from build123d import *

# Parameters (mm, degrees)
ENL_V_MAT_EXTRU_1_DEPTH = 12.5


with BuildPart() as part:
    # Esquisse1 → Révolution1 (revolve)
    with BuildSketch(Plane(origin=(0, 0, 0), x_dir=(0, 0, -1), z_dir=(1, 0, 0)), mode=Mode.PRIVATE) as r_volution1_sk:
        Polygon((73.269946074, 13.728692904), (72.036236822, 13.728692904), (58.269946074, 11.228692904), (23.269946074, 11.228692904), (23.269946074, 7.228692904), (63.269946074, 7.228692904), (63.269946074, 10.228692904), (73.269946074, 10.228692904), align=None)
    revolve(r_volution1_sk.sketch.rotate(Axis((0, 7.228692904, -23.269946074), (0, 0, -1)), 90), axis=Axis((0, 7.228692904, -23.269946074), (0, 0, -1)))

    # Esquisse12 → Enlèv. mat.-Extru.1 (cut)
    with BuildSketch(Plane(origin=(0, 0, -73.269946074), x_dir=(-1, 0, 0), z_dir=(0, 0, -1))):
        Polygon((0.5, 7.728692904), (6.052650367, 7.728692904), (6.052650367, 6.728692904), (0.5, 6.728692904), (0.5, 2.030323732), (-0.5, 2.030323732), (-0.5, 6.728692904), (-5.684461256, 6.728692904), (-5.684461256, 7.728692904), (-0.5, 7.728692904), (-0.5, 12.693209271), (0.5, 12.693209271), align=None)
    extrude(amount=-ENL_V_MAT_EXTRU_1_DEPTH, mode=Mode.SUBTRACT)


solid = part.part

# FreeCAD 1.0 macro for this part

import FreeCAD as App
import Part
import Sketcher

doc = App.newDocument("Part")
params = doc.addObject("Spreadsheet::Sheet", "Params")
for row, (alias, value) in enumerate([
    ("sketch1_width", "4 mm"),
    ("sketch1_width2", "3 mm"),
    ("sketch1_height", "35 mm"),
    ("sketch1_height2", "40 mm"),
    ("sketch1_height3", "10 mm"),
    ("revolution_angle", "360 deg"),
    ("sketch2_width", "1 mm"),
    ("pocket1_length", "12.5 mm"),
], start=1):
    params.set(f"A{row}", alias)
    params.set(f"B{row}", "=" + value)
    params.setAlias(f"B{row}", alias)

body = doc.addObject("PartDesign::Body", "Body")

sketch1 = body.newObject("Sketcher::SketchObject", "Sketch")
sketch1.AttachmentSupport = (doc.getObject("YZ_Plane"), [""])
sketch1.MapMode = "FlatFace"
sketch1.addGeometry([
    Part.LineSegment(App.Vector(13.728693, -73.269946, 0), App.Vector(13.728693, -72.036237, 0)),
    Part.LineSegment(App.Vector(13.728693, -72.036237, 0), App.Vector(11.228693, -58.269946, 0)),
    Part.LineSegment(App.Vector(11.228693, -58.269946, 0), App.Vector(11.228693, -23.269946, 0)),
    Part.LineSegment(App.Vector(11.228693, -23.269946, 0), App.Vector(7.228693, -23.269946, 0)),
    Part.LineSegment(App.Vector(7.228693, -23.269946, 0), App.Vector(7.228693, -63.269946, 0)),
    Part.LineSegment(App.Vector(7.228693, -63.269946, 0), App.Vector(10.228693, -63.269946, 0)),
    Part.LineSegment(App.Vector(10.228693, -63.269946, 0), App.Vector(10.228693, -73.269946, 0)),
    Part.LineSegment(App.Vector(10.228693, -73.269946, 0), App.Vector(13.728693, -73.269946, 0)),
], False)
sketch1.addGeometry(Part.LineSegment(App.Vector(7.228693, -23.269946, 0), App.Vector(7.228693, -73.269946, 0)), True)
sketch1.addConstraint([
    Sketcher.Constraint("Coincident", 0, 2, 1, 1),
    Sketcher.Constraint("Coincident", 1, 2, 2, 1),
    Sketcher.Constraint("Coincident", 2, 2, 3, 1),
    Sketcher.Constraint("Coincident", 3, 2, 4, 1),
    Sketcher.Constraint("Coincident", 4, 2, 5, 1),
    Sketcher.Constraint("Coincident", 5, 2, 6, 1),
    Sketcher.Constraint("Coincident", 6, 2, 7, 1),
    Sketcher.Constraint("Coincident", 7, 2, 0, 1),
    Sketcher.Constraint("Vertical", 0),
    Sketcher.Constraint("Vertical", 2),
    Sketcher.Constraint("Horizontal", 3),
    Sketcher.Constraint("Vertical", 4),
    Sketcher.Constraint("Horizontal", 5),
    Sketcher.Constraint("Vertical", 6),
    Sketcher.Constraint("Horizontal", 7),
    Sketcher.Constraint("Vertical", 8),
    Sketcher.Constraint("Coincident", 8, 1, 3, 2),
    Sketcher.Constraint("Horizontal", 7, 2, 8, 2),
    Sketcher.Constraint("DistanceX", 3, 2, 3, 1, 4.0),
    Sketcher.Constraint("DistanceX", 5, 1, 5, 2, 3.0),
    Sketcher.Constraint("DistanceY", 2, 1, 2, 2, 35.0),
    Sketcher.Constraint("DistanceY", 4, 2, 4, 1, 40.0),
    Sketcher.Constraint("DistanceY", 6, 2, 6, 1, 10.0),
    Sketcher.Constraint("DistanceX", 7, 1, 7, 2, 3.5),
    Sketcher.Constraint("DistanceY", 0, 1, 0, 2, 1.233709),
    Sketcher.Constraint("DistanceX", -1, 1, 0, 2, 13.728693),
    Sketcher.Constraint("DistanceY", 0, 2, -1, 1, 72.036237),
])
sketch1.setExpression("Constraints[18]", "Params.sketch1_width")
sketch1.setExpression("Constraints[19]", "Params.sketch1_width2")
sketch1.setExpression("Constraints[20]", "Params.sketch1_height")
sketch1.setExpression("Constraints[21]", "Params.sketch1_height2")
sketch1.setExpression("Constraints[22]", "Params.sketch1_height3")
revolution = body.newObject("PartDesign::Revolution", "Revolution")
revolution.Profile = sketch1
revolution.ReferenceAxis = (sketch1, ["Axis0"])
revolution.setExpression("Angle", "Params.revolution_angle")

sketch2 = body.newObject("Sketcher::SketchObject", "Sketch001")
sketch2.AttachmentSupport = (doc.getObject("XY_Plane"), [""])
sketch2.MapMode = "FlatFace"
sketch2.AttachmentOffset = App.Placement(App.Vector(0, 0, -73.269946), App.Rotation())
sketch2.addGeometry([
    Part.LineSegment(App.Vector(-6.05265, 7.728693, 0), App.Vector(-0.5, 7.728693, 0)),
    Part.LineSegment(App.Vector(-0.5, 7.728693, 0), App.Vector(-0.5, 12.693209, 0)),
    Part.LineSegment(App.Vector(-0.5, 12.693209, 0), App.Vector(0.5, 12.693209, 0)),
    Part.LineSegment(App.Vector(0.5, 12.693209, 0), App.Vector(0.5, 7.728693, 0)),
    Part.LineSegment(App.Vector(0.5, 7.728693, 0), App.Vector(5.684461, 7.728693, 0)),
    Part.LineSegment(App.Vector(5.684461, 7.728693, 0), App.Vector(5.684461, 6.728693, 0)),
    Part.LineSegment(App.Vector(5.684461, 6.728693, 0), App.Vector(0.5, 6.728693, 0)),
    Part.LineSegment(App.Vector(0.5, 6.728693, 0), App.Vector(0.5, 2.030324, 0)),
    Part.LineSegment(App.Vector(0.5, 2.030324, 0), App.Vector(-0.5, 2.030324, 0)),
    Part.LineSegment(App.Vector(-0.5, 2.030324, 0), App.Vector(-0.5, 6.728693, 0)),
    Part.LineSegment(App.Vector(-0.5, 6.728693, 0), App.Vector(-6.05265, 6.728693, 0)),
    Part.LineSegment(App.Vector(-6.05265, 6.728693, 0), App.Vector(-6.05265, 7.728693, 0)),
], False)
sketch2.addConstraint([
    Sketcher.Constraint("Coincident", 0, 2, 1, 1),
    Sketcher.Constraint("Coincident", 1, 2, 2, 1),
    Sketcher.Constraint("Coincident", 2, 2, 3, 1),
    Sketcher.Constraint("Coincident", 3, 2, 4, 1),
    Sketcher.Constraint("Coincident", 4, 2, 5, 1),
    Sketcher.Constraint("Coincident", 5, 2, 6, 1),
    Sketcher.Constraint("Coincident", 6, 2, 7, 1),
    Sketcher.Constraint("Coincident", 7, 2, 8, 1),
    Sketcher.Constraint("Coincident", 8, 2, 9, 1),
    Sketcher.Constraint("Coincident", 9, 2, 10, 1),
    Sketcher.Constraint("Coincident", 10, 2, 11, 1),
    Sketcher.Constraint("Coincident", 11, 2, 0, 1),
    Sketcher.Constraint("Horizontal", 0),
    Sketcher.Constraint("Vertical", 1),
    Sketcher.Constraint("Horizontal", 2),
    Sketcher.Constraint("Vertical", 3),
    Sketcher.Constraint("Horizontal", 4),
    Sketcher.Constraint("Vertical", 5),
    Sketcher.Constraint("Horizontal", 6),
    Sketcher.Constraint("Vertical", 7),
    Sketcher.Constraint("Horizontal", 8),
    Sketcher.Constraint("Vertical", 9),
    Sketcher.Constraint("Horizontal", 10),
    Sketcher.Constraint("Vertical", 11),
    Sketcher.Constraint("Symmetric", 0, 2, 3, 2, -2),
    Sketcher.Constraint("Symmetric", 6, 2, 9, 2, -2),
    Sketcher.Constraint("Vertical", 3, 2, 6, 2),
    Sketcher.Constraint("Equal", 8, 5),
    Sketcher.Constraint("DistanceX", 2, 1, 2, 2, 1.0),
    Sketcher.Constraint("DistanceX", 0, 1, 0, 2, 5.55265),
    Sketcher.Constraint("DistanceX", 4, 1, 4, 2, 5.184461),
    Sketcher.Constraint("DistanceY", 7, 2, 7, 1, 4.698369),
    Sketcher.Constraint("DistanceY", 1, 1, 1, 2, 4.964516),
    Sketcher.Constraint("DistanceY", -1, 1, 1, 2, 12.693209),
])
sketch2.setExpression("Constraints[28]", "Params.sketch2_width")
pocket1 = body.newObject("PartDesign::Pocket", "Pocket")
pocket1.Profile = sketch2
pocket1.setExpression("Length", "Params.pocket1_length")
pocket1.Reversed = True

doc.recompute()
